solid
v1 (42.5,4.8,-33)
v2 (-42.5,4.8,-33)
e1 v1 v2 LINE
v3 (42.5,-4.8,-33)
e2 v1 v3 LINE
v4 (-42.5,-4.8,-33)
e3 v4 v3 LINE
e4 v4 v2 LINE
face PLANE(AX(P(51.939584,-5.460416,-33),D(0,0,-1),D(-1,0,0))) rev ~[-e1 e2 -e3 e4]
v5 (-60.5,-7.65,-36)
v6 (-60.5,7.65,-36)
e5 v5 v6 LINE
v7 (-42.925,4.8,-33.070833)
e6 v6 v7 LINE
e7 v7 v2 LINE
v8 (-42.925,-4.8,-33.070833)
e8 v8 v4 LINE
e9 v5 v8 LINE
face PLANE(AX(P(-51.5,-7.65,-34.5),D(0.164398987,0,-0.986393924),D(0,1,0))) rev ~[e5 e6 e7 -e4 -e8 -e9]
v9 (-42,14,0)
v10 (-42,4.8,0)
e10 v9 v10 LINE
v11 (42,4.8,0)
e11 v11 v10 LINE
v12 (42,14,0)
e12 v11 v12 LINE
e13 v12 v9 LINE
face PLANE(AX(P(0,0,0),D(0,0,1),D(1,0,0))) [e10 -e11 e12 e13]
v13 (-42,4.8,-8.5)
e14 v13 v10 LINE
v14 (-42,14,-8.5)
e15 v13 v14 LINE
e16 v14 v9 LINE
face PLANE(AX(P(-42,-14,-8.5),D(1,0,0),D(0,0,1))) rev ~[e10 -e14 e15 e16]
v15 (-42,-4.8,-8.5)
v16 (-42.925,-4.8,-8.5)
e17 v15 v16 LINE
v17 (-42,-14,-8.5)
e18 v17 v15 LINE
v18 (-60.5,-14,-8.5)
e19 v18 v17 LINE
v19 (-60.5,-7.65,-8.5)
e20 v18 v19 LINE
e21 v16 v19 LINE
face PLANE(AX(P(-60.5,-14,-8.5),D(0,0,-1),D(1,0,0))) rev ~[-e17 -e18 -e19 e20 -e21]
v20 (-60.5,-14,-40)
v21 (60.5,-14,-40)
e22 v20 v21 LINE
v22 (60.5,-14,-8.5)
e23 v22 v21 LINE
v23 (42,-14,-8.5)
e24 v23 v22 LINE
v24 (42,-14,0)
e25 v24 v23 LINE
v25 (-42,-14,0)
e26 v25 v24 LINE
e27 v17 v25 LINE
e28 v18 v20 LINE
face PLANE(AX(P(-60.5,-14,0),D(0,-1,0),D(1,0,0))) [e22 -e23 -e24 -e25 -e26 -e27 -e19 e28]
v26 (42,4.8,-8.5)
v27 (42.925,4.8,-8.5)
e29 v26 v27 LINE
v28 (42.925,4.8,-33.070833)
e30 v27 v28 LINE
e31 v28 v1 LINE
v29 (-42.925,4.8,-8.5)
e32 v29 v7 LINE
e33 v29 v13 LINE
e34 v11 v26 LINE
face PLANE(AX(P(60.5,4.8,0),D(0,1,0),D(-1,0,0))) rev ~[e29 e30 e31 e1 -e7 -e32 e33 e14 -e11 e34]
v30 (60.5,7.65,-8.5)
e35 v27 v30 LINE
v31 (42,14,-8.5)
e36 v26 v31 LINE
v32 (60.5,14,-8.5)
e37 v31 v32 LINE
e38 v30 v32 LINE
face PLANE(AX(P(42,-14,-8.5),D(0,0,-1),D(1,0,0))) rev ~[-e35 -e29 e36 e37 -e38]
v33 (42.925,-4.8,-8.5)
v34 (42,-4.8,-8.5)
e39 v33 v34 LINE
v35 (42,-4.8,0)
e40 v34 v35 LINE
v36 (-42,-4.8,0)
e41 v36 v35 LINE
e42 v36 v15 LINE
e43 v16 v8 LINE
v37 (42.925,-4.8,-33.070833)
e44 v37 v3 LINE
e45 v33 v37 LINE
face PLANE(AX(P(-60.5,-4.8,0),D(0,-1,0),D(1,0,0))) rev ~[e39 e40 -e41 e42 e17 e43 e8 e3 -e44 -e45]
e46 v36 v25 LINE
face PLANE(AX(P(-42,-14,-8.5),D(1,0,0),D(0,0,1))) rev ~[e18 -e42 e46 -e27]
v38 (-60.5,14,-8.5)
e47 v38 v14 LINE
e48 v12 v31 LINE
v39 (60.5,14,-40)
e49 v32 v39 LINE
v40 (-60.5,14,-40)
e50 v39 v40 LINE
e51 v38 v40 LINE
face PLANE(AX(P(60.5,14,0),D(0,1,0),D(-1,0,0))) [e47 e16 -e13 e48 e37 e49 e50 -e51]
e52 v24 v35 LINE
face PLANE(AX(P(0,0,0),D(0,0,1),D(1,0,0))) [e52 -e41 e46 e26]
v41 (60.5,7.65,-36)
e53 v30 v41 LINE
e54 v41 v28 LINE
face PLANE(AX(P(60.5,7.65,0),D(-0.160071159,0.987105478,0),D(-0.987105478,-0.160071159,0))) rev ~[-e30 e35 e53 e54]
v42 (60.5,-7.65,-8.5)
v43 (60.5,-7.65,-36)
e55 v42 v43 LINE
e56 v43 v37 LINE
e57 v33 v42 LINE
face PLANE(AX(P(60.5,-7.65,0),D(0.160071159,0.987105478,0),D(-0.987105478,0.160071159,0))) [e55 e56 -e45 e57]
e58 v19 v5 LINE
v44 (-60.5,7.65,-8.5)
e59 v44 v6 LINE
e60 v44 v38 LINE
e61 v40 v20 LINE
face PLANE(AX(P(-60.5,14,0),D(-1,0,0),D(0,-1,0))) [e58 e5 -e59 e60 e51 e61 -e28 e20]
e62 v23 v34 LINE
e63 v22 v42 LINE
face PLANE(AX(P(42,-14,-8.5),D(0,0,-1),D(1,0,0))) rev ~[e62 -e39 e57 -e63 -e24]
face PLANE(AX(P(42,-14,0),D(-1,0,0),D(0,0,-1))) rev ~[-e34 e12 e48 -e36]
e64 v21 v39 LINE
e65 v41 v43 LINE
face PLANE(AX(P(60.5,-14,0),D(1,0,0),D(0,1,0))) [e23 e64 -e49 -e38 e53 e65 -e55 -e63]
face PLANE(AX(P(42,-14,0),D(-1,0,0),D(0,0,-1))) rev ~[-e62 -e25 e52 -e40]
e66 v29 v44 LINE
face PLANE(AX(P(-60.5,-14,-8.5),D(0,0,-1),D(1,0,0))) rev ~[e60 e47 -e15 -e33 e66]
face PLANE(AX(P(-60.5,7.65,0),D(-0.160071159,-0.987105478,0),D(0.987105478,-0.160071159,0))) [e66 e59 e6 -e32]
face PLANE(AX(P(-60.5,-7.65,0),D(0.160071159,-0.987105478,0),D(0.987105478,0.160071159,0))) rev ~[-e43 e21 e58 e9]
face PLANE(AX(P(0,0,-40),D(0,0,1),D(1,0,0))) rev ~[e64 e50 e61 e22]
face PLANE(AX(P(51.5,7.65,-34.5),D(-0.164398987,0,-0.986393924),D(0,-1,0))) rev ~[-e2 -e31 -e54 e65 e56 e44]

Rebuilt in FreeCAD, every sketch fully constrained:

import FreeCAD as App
import Part
import Sketcher
Q = App.Units.Quantity


def edges_at(feature, points):
    """Names of the edges that pass closest to the given points."""
    edges = feature.Shape.Edges
    near = lambda p: min(range(len(edges)), key=lambda i: edges[i].distToShape(Part.Vertex(*p))[0])
    return sorted({f"Edge{near(p) + 1}" for p in points})

doc = App.newDocument("Part")
body = doc.addObject("PartDesign::Body", "Body")

# Sketch on XY plane
sketch1 = body.newObject("Sketcher::SketchObject", "Sketch")
sketch1.AttachmentSupport = (doc.getObject("XY_Plane"), [""])
sketch1.MapMode = "FlatFace"
sketch1.addGeometry([
    Part.LineSegment(App.Vector(-60.5, 14, 0), App.Vector(-60.5, -14, 0)),
    Part.LineSegment(App.Vector(-60.5, -14, 0), App.Vector(60.5, -14, 0)),
    Part.LineSegment(App.Vector(60.5, -14, 0), App.Vector(60.5, 14, 0)),
    Part.LineSegment(App.Vector(60.5, 14, 0), App.Vector(-60.5, 14, 0)),
], False)
sketch1.addConstraint([
    Sketcher.Constraint("Coincident", 0, 2, 1, 1),
    Sketcher.Constraint("Coincident", 1, 2, 2, 1),
    Sketcher.Constraint("Coincident", 2, 2, 3, 1),
    Sketcher.Constraint("Coincident", 3, 2, 0, 1),
    Sketcher.Constraint("Vertical", 0),
    Sketcher.Constraint("Horizontal", 1),
    Sketcher.Constraint("Vertical", 2),
    Sketcher.Constraint("Horizontal", 3),
    Sketcher.Constraint("Symmetric", 0, 2, 2, 2, -1, 1),
    Sketcher.Constraint("DistanceX", 1, 1, 1, 2, Q("121 mm")),
    Sketcher.Constraint("DistanceY", 0, 2, 0, 1, Q("28 mm")),
])
pad1 = body.newObject("PartDesign::Pad", "Pad")
pad1.Profile = sketch1
pad1.Length = 40
pad1.Reversed = True

# Sketch on XZ plane
sketch2 = body.newObject("Sketcher::SketchObject", "Sketch001")
sketch2.AttachmentSupport = (doc.getObject("XZ_Plane"), [""])
sketch2.MapMode = "FlatFace"
sketch2.AttachmentOffset = App.Placement(App.Vector(0, 0, 14), App.Rotation())
sketch2.addGeometry([
    Part.LineSegment(App.Vector(60.5, -8.5, 0), App.Vector(60.5, 0, 0)),
    Part.LineSegment(App.Vector(60.5, 0, 0), App.Vector(42, 0, 0)),
    Part.LineSegment(App.Vector(42, 0, 0), App.Vector(42, -8.5, 0)),
    Part.LineSegment(App.Vector(42, -8.5, 0), App.Vector(60.5, -8.5, 0)),
], False)
sketch2.addConstraint([
    Sketcher.Constraint("Coincident", 0, 2, 1, 1),
    Sketcher.Constraint("Coincident", 1, 2, 2, 1),
    Sketcher.Constraint("Coincident", 2, 2, 3, 1),
    Sketcher.Constraint("Coincident", 3, 2, 0, 1),
    Sketcher.Constraint("Vertical", 0),
    Sketcher.Constraint("Horizontal", 1),
    Sketcher.Constraint("Vertical", 2),
    Sketcher.Constraint("Horizontal", 3),
    Sketcher.Constraint("PointOnObject", 0, 2, -1),
    Sketcher.Constraint("DistanceX", 1, 2, 1, 1, Q("18.5 mm")),
    Sketcher.Constraint("DistanceY", 0, 1, 0, 2, Q("8.5 mm")),
    Sketcher.Constraint("DistanceX", -1, 1, 1, 2, Q("42 mm")),
])
pocket1 = body.newObject("PartDesign::Pocket", "Pocket")
pocket1.Profile = sketch2
pocket1.Length = 28

# Sketch on XZ plane
sketch3 = body.newObject("Sketcher::SketchObject", "Sketch002")
sketch3.AttachmentSupport = (doc.getObject("XZ_Plane"), [""])
sketch3.MapMode = "FlatFace"
sketch3.AttachmentOffset = App.Placement(App.Vector(0, 0, 14), App.Rotation())
sketch3.addGeometry([
    Part.LineSegment(App.Vector(-60.5, 0, 0), App.Vector(-60.5, -8.5, 0)),
    Part.LineSegment(App.Vector(-60.5, -8.5, 0), App.Vector(-42, -8.5, 0)),
    Part.LineSegment(App.Vector(-42, -8.5, 0), App.Vector(-42, 0, 0)),
    Part.LineSegment(App.Vector(-42, 0, 0), App.Vector(-60.5, 0, 0)),
], False)
sketch3.addConstraint([
    Sketcher.Constraint("Coincident", 0, 2, 1, 1),
    Sketcher.Constraint("Coincident", 1, 2, 2, 1),
    Sketcher.Constraint("Coincident", 2, 2, 3, 1),
    Sketcher.Constraint("Coincident", 3, 2, 0, 1),
    Sketcher.Constraint("Vertical", 0),
    Sketcher.Constraint("Horizontal", 1),
    Sketcher.Constraint("Vertical", 2),
    Sketcher.Constraint("Horizontal", 3),
    Sketcher.Constraint("PointOnObject", 2, 2, -1),
    Sketcher.Constraint("DistanceX", 1, 1, 1, 2, Q("18.5 mm")),
    Sketcher.Constraint("DistanceY", 0, 2, 0, 1, Q("8.5 mm")),
    Sketcher.Constraint("DistanceX", 1, 2, -1, 1, Q("42 mm")),
])
pocket2 = body.newObject("PartDesign::Pocket", "Pocket001")
pocket2.Profile = sketch3
pocket2.Length = 28

# Sketch on XY plane
sketch4 = body.newObject("Sketcher::SketchObject", "Sketch003")
sketch4.AttachmentSupport = (doc.getObject("XY_Plane"), [""])
sketch4.MapMode = "FlatFace"
sketch4.addGeometry([
    Part.LineSegment(App.Vector(42, 4.65, 0), App.Vector(60.5, 4.65, 0)),
    Part.LineSegment(App.Vector(60.5, 4.65, 0), App.Vector(60.5, 7.65, 0)),
    Part.LineSegment(App.Vector(60.5, 7.65, 0), App.Vector(42, 4.65, 0)),
], False)
sketch4.addConstraint([
    Sketcher.Constraint("Coincident", 0, 2, 1, 1),
    Sketcher.Constraint("Coincident", 1, 2, 2, 1),
    Sketcher.Constraint("Coincident", 2, 2, 0, 1),
    Sketcher.Constraint("Horizontal", 0),
    Sketcher.Constraint("Vertical", 1),
    Sketcher.Constraint("DistanceY", 1, 1, 1, 2, Q("3 mm")),
    Sketcher.Constraint("DistanceX", 0, 1, 0, 2, Q("18.5 mm")),
    Sketcher.Constraint("DistanceX", -1, 1, 2, 2, Q("42 mm")),
    Sketcher.Constraint("DistanceY", -1, 1, 0, 2, Q("4.65 mm")),
])
pocket3 = body.newObject("PartDesign::Pocket", "Pocket002")
pocket3.Profile = sketch4
pocket3.Length = 33

# Sketch on XY plane
sketch5 = body.newObject("Sketcher::SketchObject", "Sketch004")
sketch5.AttachmentSupport = (doc.getObject("XY_Plane"), [""])
sketch5.MapMode = "FlatFace"
sketch5.addGeometry([
    Part.LineSegment(App.Vector(60.5, -7.65, 0), App.Vector(60.5, -4.65, 0)),  # 0
    Part.LineSegment(App.Vector(60.5, -4.65, 0), App.Vector(42, -4.65, 0)),  # 1
    Part.LineSegment(App.Vector(42, -4.65, 0), App.Vector(60.5, -7.65, 0)),  # 2
    Part.LineSegment(App.Vector(-60.5, 7.65, 0), App.Vector(-60.5, 4.65, 0)),  # 3
    Part.LineSegment(App.Vector(-60.5, 4.65, 0), App.Vector(-42, 4.65, 0)),  # 4
    Part.LineSegment(App.Vector(-42, 4.65, 0), App.Vector(-60.5, 7.65, 0)),  # 5
], False)
sketch5.addConstraint([
    Sketcher.Constraint("Coincident", 0, 2, 1, 1),
    Sketcher.Constraint("Coincident", 1, 2, 2, 1),
    Sketcher.Constraint("Coincident", 2, 2, 0, 1),
    Sketcher.Constraint("Coincident", 3, 2, 4, 1),
    Sketcher.Constraint("Coincident", 4, 2, 5, 1),
    Sketcher.Constraint("Coincident", 5, 2, 3, 1),
    Sketcher.Constraint("Vertical", 0),
    Sketcher.Constraint("Horizontal", 1),
    Sketcher.Constraint("Vertical", 3),
    Sketcher.Constraint("Horizontal", 4),
    Sketcher.Constraint("Symmetric", 0, 2, 3, 2, -1, 1),
    Sketcher.Constraint("Parallel", 2, 5),
    Sketcher.Constraint("Equal", 1, 4),
    Sketcher.Constraint("DistanceY", 0, 1, 0, 2, Q("3 mm")),
    Sketcher.Constraint("DistanceX", 1, 2, 1, 1, Q("18.5 mm")),
    Sketcher.Constraint("DistanceX", -1, 1, 1, 2, Q("42 mm")),
    Sketcher.Constraint("DistanceY", 1, 2, 3, 2, Q("9.3 mm")),
])
pocket4 = body.newObject("PartDesign::Pocket", "Pocket003")
pocket4.Profile = sketch5
pocket4.Length = 33

# Sketch on XY plane
sketch6 = body.newObject("Sketcher::SketchObject", "Sketch005")
sketch6.AttachmentSupport = (doc.getObject("XY_Plane"), [""])
sketch6.MapMode = "FlatFace"
sketch6.addGeometry([
    Part.LineSegment(App.Vector(-42, -4.65, 0), App.Vector(-60.5, -4.65, 0)),
    Part.LineSegment(App.Vector(-60.5, -4.65, 0), App.Vector(-60.5, -7.65, 0)),
    Part.LineSegment(App.Vector(-60.5, -7.65, 0), App.Vector(-42, -4.65, 0)),
], False)
sketch6.addConstraint([
    Sketcher.Constraint("Coincident", 0, 2, 1, 1),
    Sketcher.Constraint("Coincident", 1, 2, 2, 1),
    Sketcher.Constraint("Coincident", 2, 2, 0, 1),
    Sketcher.Constraint("Horizontal", 0),
    Sketcher.Constraint("Vertical", 1),
    Sketcher.Constraint("DistanceY", 1, 2, 1, 1, Q("3 mm")),
    Sketcher.Constraint("DistanceX", 0, 2, 0, 1, Q("18.5 mm")),
    Sketcher.Constraint("DistanceX", 2, 2, -1, 1, Q("42 mm")),
    Sketcher.Constraint("DistanceY", 0, 2, -1, 1, Q("4.65 mm")),
])
pocket5 = body.newObject("PartDesign::Pocket", "Pocket004")
pocket5.Profile = sketch6
pocket5.Length = 33

# Sketch on XY plane
sketch7 = body.newObject("Sketcher::SketchObject", "Sketch006")
sketch7.AttachmentSupport = (doc.getObject("XY_Plane"), [""])
sketch7.MapMode = "FlatFace"
sketch7.addGeometry([
    Part.LineSegment(App.Vector(-60.5, -4.8, 0), App.Vector(60.5, -4.8, 0)),
    Part.LineSegment(App.Vector(60.5, -4.8, 0), App.Vector(60.5, 4.8, 0)),
    Part.LineSegment(App.Vector(60.5, 4.8, 0), App.Vector(-60.5, 4.8, 0)),
    Part.LineSegment(App.Vector(-60.5, 4.8, 0), App.Vector(-60.5, -4.8, 0)),
], False)
sketch7.addConstraint([
    Sketcher.Constraint("Coincident", 0, 2, 1, 1),
    Sketcher.Constraint("Coincident", 1, 2, 2, 1),
    Sketcher.Constraint("Coincident", 2, 2, 3, 1),
    Sketcher.Constraint("Coincident", 3, 2, 0, 1),
    Sketcher.Constraint("Horizontal", 0),
    Sketcher.Constraint("Vertical", 1),
    Sketcher.Constraint("Horizontal", 2),
    Sketcher.Constraint("Vertical", 3),
    Sketcher.Constraint("Symmetric", 0, 2, 2, 2, -1, 1),
    Sketcher.Constraint("DistanceX", 0, 1, 0, 2, Q("121 mm")),
    Sketcher.Constraint("DistanceY", 1, 1, 1, 2, Q("9.6 mm")),
])
pocket6 = body.newObject("PartDesign::Pocket", "Pocket005")
pocket6.Profile = sketch7
pocket6.Length = 33
doc.recompute()

chamfer = body.newObject("PartDesign::Chamfer", "Chamfer")
chamfer.Base = (pocket6, edges_at(pocket6, [(60.5, 0, -33)]))
chamfer.ChamferType = "Two distances"
chamfer.Size = 3
chamfer.Size2 = 18
doc.recompute()

chamfer2 = body.newObject("PartDesign::Chamfer", "Chamfer001")
chamfer2.Base = (chamfer, edges_at(chamfer, [(-60.5, 0, -33)]))
chamfer2.ChamferType = "Two distances"
chamfer2.Size = 3
chamfer2.Size2 = 18
chamfer2.FlipDirection = True

doc.recompute()
